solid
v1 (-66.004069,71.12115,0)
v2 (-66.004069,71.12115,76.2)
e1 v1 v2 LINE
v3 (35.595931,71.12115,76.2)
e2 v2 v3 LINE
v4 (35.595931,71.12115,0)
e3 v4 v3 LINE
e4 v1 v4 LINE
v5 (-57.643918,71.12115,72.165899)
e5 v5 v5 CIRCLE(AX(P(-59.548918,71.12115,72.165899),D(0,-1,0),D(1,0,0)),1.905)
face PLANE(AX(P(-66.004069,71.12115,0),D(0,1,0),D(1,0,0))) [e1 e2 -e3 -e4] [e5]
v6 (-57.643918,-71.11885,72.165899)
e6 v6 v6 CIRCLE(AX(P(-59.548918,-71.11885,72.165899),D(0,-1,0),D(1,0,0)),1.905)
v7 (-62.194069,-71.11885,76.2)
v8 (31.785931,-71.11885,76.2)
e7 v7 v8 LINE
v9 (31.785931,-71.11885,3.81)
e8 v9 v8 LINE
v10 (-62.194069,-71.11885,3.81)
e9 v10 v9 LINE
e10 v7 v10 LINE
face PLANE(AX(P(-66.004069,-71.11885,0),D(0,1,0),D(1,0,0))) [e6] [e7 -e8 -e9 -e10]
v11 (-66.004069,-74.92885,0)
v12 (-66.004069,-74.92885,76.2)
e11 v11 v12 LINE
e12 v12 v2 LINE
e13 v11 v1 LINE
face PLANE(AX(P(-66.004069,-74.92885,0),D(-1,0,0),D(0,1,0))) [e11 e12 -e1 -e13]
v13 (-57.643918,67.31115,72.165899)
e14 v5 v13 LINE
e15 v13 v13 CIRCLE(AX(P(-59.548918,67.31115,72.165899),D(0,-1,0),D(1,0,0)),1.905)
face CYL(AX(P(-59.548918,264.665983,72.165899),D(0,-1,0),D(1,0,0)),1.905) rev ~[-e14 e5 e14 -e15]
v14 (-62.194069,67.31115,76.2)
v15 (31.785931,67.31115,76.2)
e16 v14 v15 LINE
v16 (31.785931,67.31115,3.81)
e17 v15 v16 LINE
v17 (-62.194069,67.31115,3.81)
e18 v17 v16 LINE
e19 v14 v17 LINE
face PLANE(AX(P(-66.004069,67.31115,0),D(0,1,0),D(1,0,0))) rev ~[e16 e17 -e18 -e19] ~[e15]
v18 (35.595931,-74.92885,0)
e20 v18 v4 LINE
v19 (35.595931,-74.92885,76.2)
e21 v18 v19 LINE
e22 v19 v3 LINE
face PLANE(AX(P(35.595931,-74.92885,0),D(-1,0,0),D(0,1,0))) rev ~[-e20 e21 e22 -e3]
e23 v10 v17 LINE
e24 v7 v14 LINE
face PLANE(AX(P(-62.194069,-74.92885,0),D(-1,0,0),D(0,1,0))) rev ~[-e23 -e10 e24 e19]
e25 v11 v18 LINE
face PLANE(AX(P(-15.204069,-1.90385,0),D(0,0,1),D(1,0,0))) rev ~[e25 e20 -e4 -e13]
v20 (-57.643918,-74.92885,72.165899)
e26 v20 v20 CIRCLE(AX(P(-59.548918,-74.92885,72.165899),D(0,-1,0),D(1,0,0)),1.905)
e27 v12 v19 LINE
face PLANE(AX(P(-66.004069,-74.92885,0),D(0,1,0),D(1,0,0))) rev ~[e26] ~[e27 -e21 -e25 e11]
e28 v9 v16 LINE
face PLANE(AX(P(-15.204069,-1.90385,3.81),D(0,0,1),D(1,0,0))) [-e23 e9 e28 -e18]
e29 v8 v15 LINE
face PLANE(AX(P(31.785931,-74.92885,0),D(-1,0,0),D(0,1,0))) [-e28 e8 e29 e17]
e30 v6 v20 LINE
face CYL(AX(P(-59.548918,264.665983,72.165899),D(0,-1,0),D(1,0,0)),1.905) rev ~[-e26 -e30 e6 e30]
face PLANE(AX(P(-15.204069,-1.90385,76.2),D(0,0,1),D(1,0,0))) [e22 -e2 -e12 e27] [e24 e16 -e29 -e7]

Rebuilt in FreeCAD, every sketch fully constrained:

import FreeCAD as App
import Part
import Sketcher

V = App.Vector
Q = App.Units.Quantity


def faces_at(feature, points):
    """Names of the faces that lie closest to the given points."""
    faces = feature.Shape.Faces
    near = lambda p: min(range(len(faces)), key=lambda i: faces[i].distToShape(Part.Vertex(*p))[0])
    return sorted({f"Face{near(p) + 1}" for p in points})

doc = App.newDocument("Part")
params = doc.addObject("Spreadsheet::Sheet", "Params")
for row, (alias, value) in enumerate([
    ("sketch1_width", "4 in"),
    ("sketch1_height", "5.75 in"),
    ("pad1_length", "3 in"),
    ("thickness_wall", "0.15 in"),
    ("sketch2_diameter", "0.15 in"),
    ("hole_diameter", "0.15 in"),
], start=1):
    params.set(f"A{row}", alias)
    params.set(f"B{row}", "=" + value)
    params.setAlias(f"B{row}", alias)

body = doc.addObject("PartDesign::Body", "Body")

# Sketch on XY plane
sketch1 = doc.addObject("Sketcher::SketchObject", "Sketch")
body.addObject(sketch1)
sketch1.AttachmentSupport = (doc.XY_Plane, [""])
sketch1.MapMode = "FlatFace"
sketch1.addGeometry([
    Part.LineSegment(V(-66, 71, 0), V(-66, -75, 0)),
    Part.LineSegment(V(-66, -75, 0), V(36, -75, 0)),
    Part.LineSegment(V(36, -75, 0), V(36, 71, 0)),
    Part.LineSegment(V(36, 71, 0), V(-66, 71, 0)),
], False)
sketch1.addConstraint([
    Sketcher.Constraint("Coincident", 0, 2, 1, 1),
    Sketcher.Constraint("Coincident", 1, 2, 2, 1),
    Sketcher.Constraint("Coincident", 2, 2, 3, 1),
    Sketcher.Constraint("Coincident", 3, 2, 0, 1),
    Sketcher.Constraint("Vertical", 0),
    Sketcher.Constraint("Horizontal", 1),
    Sketcher.Constraint("Vertical", 2),
    Sketcher.Constraint("Horizontal", 3),
    Sketcher.Constraint("DistanceX", 1, 1, 1, 2, Q("4 in")),
    Sketcher.Constraint("DistanceY", 0, 2, 0, 1, Q("5.75 in")),
    Sketcher.Constraint("DistanceX", 0, 2, -1, 1, 66.004069),
    Sketcher.Constraint("DistanceY", 0, 2, -1, 1, 74.92885),
])
sketch1.setExpression("Constraints[8]", "Params.sketch1_width")
sketch1.setExpression("Constraints[9]", "Params.sketch1_height")
pad1 = doc.addObject("PartDesign::Pad", "Pad")
body.addObject(pad1)
pad1.Profile = sketch1
pad1.setExpression("Length", "Params.pad1_length")
doc.recompute()

thickness = doc.addObject("PartDesign::Thickness", "Thickness")
body.addObject(thickness)
thickness.Base = (pad1, faces_at(pad1, [(-15.204, -1.904, 76.2)]))
thickness.setExpression("Value", "Params.thickness_wall")
thickness.Reversed = True
thickness.Join = "Arc"

# Sketch on XZ plane
sketch2 = doc.addObject("Sketcher::SketchObject", "Sketch001")
body.addObject(sketch2)
sketch2.AttachmentSupport = (doc.XZ_Plane, [""])
sketch2.MapMode = "FlatFace"
sketch2.AttachmentOffset = App.Placement(V(0, 0, -71.12115), App.Rotation())
sketch2.addGeometry(Part.Circle(V(-59.5, 72.2, 0), V(0, 0, 1), 1.9), False)
sketch2.addConstraint([
    Sketcher.Constraint("Diameter", 0, Q("0.15 in")),
    Sketcher.Constraint("DistanceY", -1, 1, 0, 3, 72.165899),
    Sketcher.Constraint("DistanceX", 0, 3, -1, 1, 59.548918),
])
sketch2.setExpression("Constraints[0]", "Params.sketch2_diameter")
doc.recompute()
hole = doc.addObject("PartDesign::Hole", "Hole")
body.addObject(hole)
hole.Profile = sketch2
hole.ThreadType = "None"
hole.setExpression("Diameter", "Params.hole_diameter")
hole.DepthType = "ThroughAll"
hole.Reversed = True

doc.recompute()
